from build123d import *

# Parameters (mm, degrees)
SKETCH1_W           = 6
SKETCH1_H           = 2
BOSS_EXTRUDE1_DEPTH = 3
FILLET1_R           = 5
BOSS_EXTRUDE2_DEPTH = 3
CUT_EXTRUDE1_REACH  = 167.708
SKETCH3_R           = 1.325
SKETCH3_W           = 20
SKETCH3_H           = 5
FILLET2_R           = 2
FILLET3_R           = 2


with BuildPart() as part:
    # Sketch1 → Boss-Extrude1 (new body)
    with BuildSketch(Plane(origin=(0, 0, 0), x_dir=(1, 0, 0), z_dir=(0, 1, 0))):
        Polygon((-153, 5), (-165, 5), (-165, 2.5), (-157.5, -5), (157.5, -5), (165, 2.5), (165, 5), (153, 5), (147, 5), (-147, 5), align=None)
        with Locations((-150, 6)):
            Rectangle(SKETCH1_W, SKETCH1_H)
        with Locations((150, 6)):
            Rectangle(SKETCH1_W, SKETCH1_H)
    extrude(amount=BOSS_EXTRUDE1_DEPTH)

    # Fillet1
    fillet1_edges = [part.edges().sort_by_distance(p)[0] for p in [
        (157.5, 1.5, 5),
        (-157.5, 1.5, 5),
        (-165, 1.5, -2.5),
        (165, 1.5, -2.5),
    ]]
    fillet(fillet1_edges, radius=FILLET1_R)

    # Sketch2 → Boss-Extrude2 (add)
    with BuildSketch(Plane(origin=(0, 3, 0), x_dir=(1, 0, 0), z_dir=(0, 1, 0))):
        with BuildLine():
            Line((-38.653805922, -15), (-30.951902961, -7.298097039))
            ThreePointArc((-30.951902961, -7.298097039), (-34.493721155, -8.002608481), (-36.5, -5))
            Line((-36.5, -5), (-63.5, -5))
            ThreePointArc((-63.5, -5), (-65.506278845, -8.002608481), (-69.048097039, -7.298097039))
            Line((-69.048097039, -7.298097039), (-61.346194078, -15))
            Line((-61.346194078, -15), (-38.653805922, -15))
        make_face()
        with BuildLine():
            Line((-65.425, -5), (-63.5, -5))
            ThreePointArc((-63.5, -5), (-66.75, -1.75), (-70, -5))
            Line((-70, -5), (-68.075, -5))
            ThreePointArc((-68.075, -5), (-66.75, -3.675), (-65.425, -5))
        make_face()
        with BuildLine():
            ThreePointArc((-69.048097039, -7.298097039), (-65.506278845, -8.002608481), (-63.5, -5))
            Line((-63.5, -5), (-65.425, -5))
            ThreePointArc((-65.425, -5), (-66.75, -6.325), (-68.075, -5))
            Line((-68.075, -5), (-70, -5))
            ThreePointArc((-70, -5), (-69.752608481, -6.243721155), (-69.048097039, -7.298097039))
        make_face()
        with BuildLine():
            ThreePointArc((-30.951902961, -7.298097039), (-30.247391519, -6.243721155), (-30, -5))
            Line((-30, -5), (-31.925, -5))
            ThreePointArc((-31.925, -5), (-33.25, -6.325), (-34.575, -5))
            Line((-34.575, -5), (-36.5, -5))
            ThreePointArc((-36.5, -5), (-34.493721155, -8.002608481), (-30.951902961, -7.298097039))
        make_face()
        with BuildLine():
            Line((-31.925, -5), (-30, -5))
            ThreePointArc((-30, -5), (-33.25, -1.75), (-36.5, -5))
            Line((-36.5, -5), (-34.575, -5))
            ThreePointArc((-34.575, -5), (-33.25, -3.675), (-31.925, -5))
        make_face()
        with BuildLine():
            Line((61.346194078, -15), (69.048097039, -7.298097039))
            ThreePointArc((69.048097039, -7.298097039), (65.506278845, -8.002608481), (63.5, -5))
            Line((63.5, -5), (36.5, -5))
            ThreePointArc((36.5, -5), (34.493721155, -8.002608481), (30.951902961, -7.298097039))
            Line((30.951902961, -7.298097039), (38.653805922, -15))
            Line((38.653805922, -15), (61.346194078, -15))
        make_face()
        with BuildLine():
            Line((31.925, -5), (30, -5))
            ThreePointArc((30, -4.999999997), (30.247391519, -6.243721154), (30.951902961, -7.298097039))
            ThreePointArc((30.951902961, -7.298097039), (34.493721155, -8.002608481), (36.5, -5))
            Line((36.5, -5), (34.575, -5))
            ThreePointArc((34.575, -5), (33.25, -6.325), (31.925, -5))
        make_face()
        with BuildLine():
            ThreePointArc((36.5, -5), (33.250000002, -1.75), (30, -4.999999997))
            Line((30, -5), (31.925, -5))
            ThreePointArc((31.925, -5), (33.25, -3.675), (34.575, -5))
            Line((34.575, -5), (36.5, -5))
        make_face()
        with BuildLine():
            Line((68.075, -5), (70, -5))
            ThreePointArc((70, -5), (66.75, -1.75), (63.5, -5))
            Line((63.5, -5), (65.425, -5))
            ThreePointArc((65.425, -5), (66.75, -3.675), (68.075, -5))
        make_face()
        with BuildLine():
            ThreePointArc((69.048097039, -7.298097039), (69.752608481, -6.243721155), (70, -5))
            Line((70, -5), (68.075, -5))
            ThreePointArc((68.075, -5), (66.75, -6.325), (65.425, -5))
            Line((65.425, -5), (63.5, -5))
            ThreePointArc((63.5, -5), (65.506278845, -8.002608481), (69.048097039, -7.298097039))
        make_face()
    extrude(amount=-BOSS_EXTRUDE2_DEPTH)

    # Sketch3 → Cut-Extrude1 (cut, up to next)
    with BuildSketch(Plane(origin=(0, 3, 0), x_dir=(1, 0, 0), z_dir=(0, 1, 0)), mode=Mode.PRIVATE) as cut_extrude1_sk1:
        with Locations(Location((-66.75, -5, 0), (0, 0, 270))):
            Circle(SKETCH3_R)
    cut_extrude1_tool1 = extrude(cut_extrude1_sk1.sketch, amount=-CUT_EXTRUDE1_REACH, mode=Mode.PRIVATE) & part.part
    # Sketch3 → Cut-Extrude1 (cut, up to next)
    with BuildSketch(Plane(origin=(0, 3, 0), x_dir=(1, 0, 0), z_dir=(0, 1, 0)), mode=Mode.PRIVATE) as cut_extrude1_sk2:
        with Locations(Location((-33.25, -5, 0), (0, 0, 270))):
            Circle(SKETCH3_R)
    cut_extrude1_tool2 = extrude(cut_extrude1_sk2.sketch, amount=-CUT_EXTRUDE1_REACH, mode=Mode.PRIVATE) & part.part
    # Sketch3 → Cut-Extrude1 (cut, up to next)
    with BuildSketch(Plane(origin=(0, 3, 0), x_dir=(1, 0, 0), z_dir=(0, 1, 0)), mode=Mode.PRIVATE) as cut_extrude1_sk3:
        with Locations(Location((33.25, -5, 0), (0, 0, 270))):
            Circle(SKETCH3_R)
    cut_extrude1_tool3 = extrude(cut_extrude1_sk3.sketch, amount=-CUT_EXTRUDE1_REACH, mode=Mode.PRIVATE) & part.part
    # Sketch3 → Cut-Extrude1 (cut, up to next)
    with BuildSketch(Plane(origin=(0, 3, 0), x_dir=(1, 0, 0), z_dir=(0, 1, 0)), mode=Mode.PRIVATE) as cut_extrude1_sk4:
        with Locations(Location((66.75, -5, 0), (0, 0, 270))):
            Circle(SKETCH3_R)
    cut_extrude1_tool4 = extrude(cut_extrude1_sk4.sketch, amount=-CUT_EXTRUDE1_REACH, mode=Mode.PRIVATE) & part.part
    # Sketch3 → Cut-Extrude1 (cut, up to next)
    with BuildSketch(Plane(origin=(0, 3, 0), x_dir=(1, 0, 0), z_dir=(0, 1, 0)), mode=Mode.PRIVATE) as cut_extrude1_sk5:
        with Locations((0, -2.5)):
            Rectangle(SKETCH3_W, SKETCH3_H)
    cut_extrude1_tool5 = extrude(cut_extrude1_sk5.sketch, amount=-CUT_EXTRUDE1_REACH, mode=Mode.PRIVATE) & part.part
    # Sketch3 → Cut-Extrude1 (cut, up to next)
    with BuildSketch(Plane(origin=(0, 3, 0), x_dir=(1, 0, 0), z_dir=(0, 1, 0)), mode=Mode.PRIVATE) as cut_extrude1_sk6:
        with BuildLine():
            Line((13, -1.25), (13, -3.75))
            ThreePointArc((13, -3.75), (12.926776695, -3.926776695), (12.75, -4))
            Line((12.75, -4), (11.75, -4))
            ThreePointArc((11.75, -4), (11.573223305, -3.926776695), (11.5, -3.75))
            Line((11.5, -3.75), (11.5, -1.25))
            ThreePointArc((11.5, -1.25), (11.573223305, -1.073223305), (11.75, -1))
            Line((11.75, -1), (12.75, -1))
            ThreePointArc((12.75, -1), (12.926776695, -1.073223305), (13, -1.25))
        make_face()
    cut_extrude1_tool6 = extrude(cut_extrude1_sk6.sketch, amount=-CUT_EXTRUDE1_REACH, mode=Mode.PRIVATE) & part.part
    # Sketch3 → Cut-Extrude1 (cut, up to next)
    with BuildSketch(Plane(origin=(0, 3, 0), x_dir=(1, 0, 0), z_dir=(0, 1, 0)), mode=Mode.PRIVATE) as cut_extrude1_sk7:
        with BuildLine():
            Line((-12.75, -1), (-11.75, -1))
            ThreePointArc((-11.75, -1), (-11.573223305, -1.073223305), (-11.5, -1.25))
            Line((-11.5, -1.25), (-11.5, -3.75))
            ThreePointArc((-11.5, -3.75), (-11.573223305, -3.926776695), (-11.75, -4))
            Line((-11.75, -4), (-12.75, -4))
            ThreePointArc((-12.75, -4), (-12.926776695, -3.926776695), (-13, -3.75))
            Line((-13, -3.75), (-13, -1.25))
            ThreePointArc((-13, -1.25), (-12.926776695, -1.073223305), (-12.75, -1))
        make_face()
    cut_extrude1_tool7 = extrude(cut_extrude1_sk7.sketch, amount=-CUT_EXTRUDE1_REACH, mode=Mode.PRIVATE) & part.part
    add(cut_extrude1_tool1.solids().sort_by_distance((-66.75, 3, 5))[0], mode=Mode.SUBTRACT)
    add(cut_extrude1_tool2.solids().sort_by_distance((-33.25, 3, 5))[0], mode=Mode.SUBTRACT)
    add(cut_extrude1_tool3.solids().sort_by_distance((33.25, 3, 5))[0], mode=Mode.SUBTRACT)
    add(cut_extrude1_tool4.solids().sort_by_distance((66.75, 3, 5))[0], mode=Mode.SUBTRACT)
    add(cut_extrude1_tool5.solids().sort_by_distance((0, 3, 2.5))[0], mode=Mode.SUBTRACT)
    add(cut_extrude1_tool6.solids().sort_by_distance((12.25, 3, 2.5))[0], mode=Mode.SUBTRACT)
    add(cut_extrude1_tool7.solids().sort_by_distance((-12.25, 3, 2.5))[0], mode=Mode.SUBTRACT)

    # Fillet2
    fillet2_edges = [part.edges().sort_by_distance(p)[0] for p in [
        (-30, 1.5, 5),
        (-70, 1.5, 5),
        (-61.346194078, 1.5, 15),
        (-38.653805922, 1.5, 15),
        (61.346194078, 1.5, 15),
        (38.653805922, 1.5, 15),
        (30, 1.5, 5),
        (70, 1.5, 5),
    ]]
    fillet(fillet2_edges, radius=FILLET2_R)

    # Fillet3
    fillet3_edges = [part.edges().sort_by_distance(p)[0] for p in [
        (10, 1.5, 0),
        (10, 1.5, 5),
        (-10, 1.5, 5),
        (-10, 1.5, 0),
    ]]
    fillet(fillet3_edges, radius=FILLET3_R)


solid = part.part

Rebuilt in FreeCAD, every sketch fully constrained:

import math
import FreeCAD as App
import Part
import Sketcher
from FreeCAD import Vector


def edges_at(feature, points):
    """Names of the edges that pass closest to the given points."""
    edges = feature.Shape.Edges
    near = lambda p: min(range(len(edges)), key=lambda i: edges[i].distToShape(Part.Vertex(*p))[0])
    return sorted({f"Edge{near(p) + 1}" for p in points})


def add_polygon(sketch, points):
    """Adds a closed chain of lines whose ends are joined by coincident constraints."""
    first, n = sketch.GeometryCount, len(points)
    for a, b in zip(points, points[1:] + points[:1]):
        sketch.addGeometry(Part.LineSegment(App.Vector(*a, 0), App.Vector(*b, 0)), False)
    for i in range(n):
        sketch.addConstraint(Sketcher.Constraint("Coincident", first + i, 2, first + (i + 1) % n, 1))

doc = App.newDocument("Part")
body = doc.addObject("PartDesign::Body", "Body")

# Sketch on XZ plane
sketch1 = doc.addObject("Sketcher::SketchObject", "Sketch")
body.addObject(sketch1)
sketch1.AttachmentSupport = (doc.XZ_Plane, [""])
sketch1.MapMode = "FlatFace"
add_polygon(sketch1, [(-153, -5), (-165, -5), (-165, -2.5), (-157.5, 5), (157.5, 5), (165, -2.5), (165, -5), (153, -5), (153, -7), (147, -7), (147, -5), (-147, -5), (-147, -7), (-153, -7)])  # lines 0-13
sketch1.addConstraint(Sketcher.Constraint("Horizontal", 0))
sketch1.addConstraint(Sketcher.Constraint("Vertical", 1))
sketch1.addConstraint(Sketcher.Constraint("Horizontal", 3))
sketch1.addConstraint(Sketcher.Constraint("Vertical", 5))
sketch1.addConstraint(Sketcher.Constraint("Horizontal", 6))
sketch1.addConstraint(Sketcher.Constraint("Vertical", 7))
sketch1.addConstraint(Sketcher.Constraint("Horizontal", 8))
sketch1.addConstraint(Sketcher.Constraint("Vertical", 9))
sketch1.addConstraint(Sketcher.Constraint("Horizontal", 10))
sketch1.addConstraint(Sketcher.Constraint("Vertical", 11))
sketch1.addConstraint(Sketcher.Constraint("Horizontal", 12))
sketch1.addConstraint(Sketcher.Constraint("Vertical", 13))
sketch1.addConstraint(Sketcher.Constraint("Symmetric", 1, 2, 4, 2, -2))
sketch1.addConstraint(Sketcher.Constraint("Symmetric", 8, 2, 11, 2, -2))
sketch1.addConstraint(Sketcher.Constraint("Symmetric", 6, 2, 13, 2, -2))
sketch1.addConstraint(Sketcher.Constraint("Perpendicular", 2, 4))
sketch1.addConstraint(Sketcher.Constraint("Horizontal", 6, 2, 9, 2))
sketch1.addConstraint(Sketcher.Constraint("Equal", 2, 4))
sketch1.addConstraint(Sketcher.Constraint("DistanceX", 0, 2, 0, 1, 12.0))
sketch1.addConstraint(Sketcher.Constraint("DistanceX", 3, 1, 3, 2, 315.0))
sketch1.addConstraint(Sketcher.Constraint("DistanceX", 8, 2, 8, 1, 6.0))
sketch1.addConstraint(Sketcher.Constraint("DistanceX", 10, 2, 10, 1, 294.0))
sketch1.addConstraint(Sketcher.Constraint("DistanceY", 7, 2, 7, 1, 2.0))
sketch1.addConstraint(Sketcher.Constraint("DistanceY", 1, 1, 1, 2, 2.5))
sketch1.addConstraint(Sketcher.Constraint("DistanceY", 0, 2, -1, 1, 5.0))
pad1 = doc.addObject("PartDesign::Pad", "Pad")
body.addObject(pad1)
pad1.Profile = sketch1
pad1.Length = 3
pad1.Reversed = True
doc.recompute()

fillet = doc.addObject("PartDesign::Fillet", "Fillet")
body.addObject(fillet)
fillet.Base = (pad1, edges_at(pad1, [
    (157.5, 1.5, 5),
    (-157.5, 1.5, 5),
    (-165, 1.5, -2.5),
    (165, 1.5, -2.5),
]))
fillet.Radius = 5

# Sketch on XZ plane
sketch2 = doc.addObject("Sketcher::SketchObject", "Sketch001")
body.addObject(sketch2)
sketch2.AttachmentSupport = (doc.XZ_Plane, [""])
sketch2.MapMode = "FlatFace"
sketch2.AttachmentOffset = App.Placement(Vector(0, 0, -3), App.Rotation())
sketch2.addGeometry(Part.LineSegment(Vector(-38.7, 15, 0), Vector(-31, 7.3, 0)), False)
sketch2.addGeometry(Part.ArcOfCircle(Part.Circle(Vector(-33.2, 5, 0), Vector(0, 0, 1), 3.2), math.radians(0), math.radians(45)), False)
sketch2.addGeometry(Part.ArcOfCircle(Part.Circle(Vector(-33.2, 5, 0), Vector(0, 0, 1), 3.2), math.radians(180), math.radians(360)), False)
sketch2.addGeometry(Part.LineSegment(Vector(-36.5, 5, 0), Vector(-63.5, 5, 0)), False)
sketch2.addGeometry(Part.ArcOfCircle(Part.Circle(Vector(-66.8, 5, 0), Vector(0, 0, 1), 3.2), math.radians(180), math.radians(360)), False)
sketch2.addGeometry(Part.ArcOfCircle(Part.Circle(Vector(-66.8, 5, 0), Vector(0, 0, 1), 3.2), math.radians(135), math.radians(180)), False)
sketch2.addGeometry(Part.LineSegment(Vector(-69, 7.3, 0), Vector(-61.3, 15, 0)), False)
sketch2.addGeometry(Part.LineSegment(Vector(-61.3, 15, 0), Vector(-38.7, 15, 0)), False)
sketch2.addGeometry(Part.Circle(Vector(-33.2, 5, 0), Vector(0, 0, 1), 1.3), False)
sketch2.addGeometry(Part.Circle(Vector(-66.8, 5, 0), Vector(0, 0, 1), 1.3), False)
sketch2.addGeometry(Part.LineSegment(Vector(61.3, 15, 0), Vector(69, 7.3, 0)), False)
sketch2.addGeometry(Part.ArcOfCircle(Part.Circle(Vector(66.8, 5, 0), Vector(0, 0, 1), 3.2), math.radians(0), math.radians(45)), False)
sketch2.addGeometry(Part.ArcOfCircle(Part.Circle(Vector(66.8, 5, 0), Vector(0, 0, 1), 3.2), math.radians(180), math.radians(360)), False)
sketch2.addGeometry(Part.LineSegment(Vector(63.5, 5, 0), Vector(36.5, 5, 0)), False)
sketch2.addGeometry(Part.ArcOfCircle(Part.Circle(Vector(33.2, 5, 0), Vector(0, 0, 1), 3.2), math.radians(-180), math.radians(0)), False)
sketch2.addGeometry(Part.ArcOfCircle(Part.Circle(Vector(33.3, 5, 0), Vector(0, 0, 1), 3.3), math.radians(135), math.radians(180)), False)
sketch2.addGeometry(Part.LineSegment(Vector(31, 7.3, 0), Vector(38.7, 15, 0)), False)
sketch2.addGeometry(Part.LineSegment(Vector(38.7, 15, 0), Vector(61.3, 15, 0)), False)
sketch2.addGeometry(Part.Circle(Vector(33.2, 5, 0), Vector(0, 0, 1), 1.3), False)
sketch2.addGeometry(Part.Circle(Vector(66.8, 5, 0), Vector(0, 0, 1), 1.3), False)
sketch2.addConstraint(Sketcher.Constraint("Tangent", 0, 2, 1, 2))
sketch2.addConstraint(Sketcher.Constraint("Tangent", 1, 1, 2, 2))
sketch2.addConstraint(Sketcher.Constraint("Coincident", 2, 1, 3, 1))
sketch2.addConstraint(Sketcher.Constraint("Coincident", 3, 2, 4, 2))
sketch2.addConstraint(Sketcher.Constraint("Tangent", 4, 1, 5, 2))
sketch2.addConstraint(Sketcher.Constraint("Tangent", 5, 1, 6, 1))
sketch2.addConstraint(Sketcher.Constraint("Coincident", 6, 2, 7, 1))
sketch2.addConstraint(Sketcher.Constraint("Coincident", 7, 2, 0, 1))
sketch2.addConstraint(Sketcher.Constraint("Tangent", 10, 2, 11, 2))
sketch2.addConstraint(Sketcher.Constraint("Tangent", 11, 1, 12, 2))
sketch2.addConstraint(Sketcher.Constraint("Coincident", 12, 1, 13, 1))
sketch2.addConstraint(Sketcher.Constraint("Coincident", 13, 2, 14, 2))
sketch2.addConstraint(Sketcher.Constraint("Tangent", 14, 1, 15, 2))
sketch2.addConstraint(Sketcher.Constraint("Tangent", 15, 1, 16, 1))
sketch2.addConstraint(Sketcher.Constraint("Coincident", 16, 2, 17, 1))
sketch2.addConstraint(Sketcher.Constraint("Coincident", 17, 2, 10, 1))
sketch2.addConstraint(Sketcher.Constraint("Horizontal", 3))
sketch2.addConstraint(Sketcher.Constraint("Horizontal", 7))
sketch2.addConstraint(Sketcher.Constraint("Horizontal", 13))
sketch2.addConstraint(Sketcher.Constraint("Horizontal", 17))
sketch2.addConstraint(Sketcher.Constraint("Coincident", 8, 3, 1, 3))
sketch2.addConstraint(Sketcher.Constraint("Coincident", 9, 3, 4, 3))
sketch2.addConstraint(Sketcher.Constraint("Coincident", 18, 3, 14, 3))
sketch2.addConstraint(Sketcher.Constraint("Coincident", 19, 3, 11, 3))
sketch2.addConstraint(Sketcher.Constraint("Equal", 1, 2))
sketch2.addConstraint(Sketcher.Constraint("Equal", 2, 4))
sketch2.addConstraint(Sketcher.Constraint("Equal", 4, 5))
sketch2.addConstraint(Sketcher.Constraint("Equal", 8, 9))
sketch2.addConstraint(Sketcher.Constraint("Equal", 5, 11))
sketch2.addConstraint(Sketcher.Constraint("Equal", 11, 12))
sketch2.addConstraint(Sketcher.Constraint("Equal", 12, 14))
sketch2.addConstraint(Sketcher.Constraint("Equal", 14, 15))
sketch2.addConstraint(Sketcher.Constraint("Equal", 9, 18))
sketch2.addConstraint(Sketcher.Constraint("Equal", 18, 19))
sketch2.addConstraint(Sketcher.Constraint("Symmetric", 4, 3, 11, 3, -2))
sketch2.addConstraint(Sketcher.Constraint("Symmetric", 1, 3, 14, 3, -2))
sketch2.addConstraint(Sketcher.Constraint("Symmetric", 7, 2, 16, 2, -2))
sketch2.addConstraint(Sketcher.Constraint("Perpendicular", 0, 6))
sketch2.addConstraint(Sketcher.Constraint("Perpendicular", 6, 10))
sketch2.addConstraint(Sketcher.Constraint("Perpendicular", 10, 16))
sketch2.addConstraint(Sketcher.Constraint("Horizontal", 2, 3, 4, 3))
sketch2.addConstraint(Sketcher.Constraint("Horizontal", 19, 3, 1, 1))
sketch2.addConstraint(Sketcher.Constraint("Horizontal", 1, 1, 2, 1))
sketch2.addConstraint(Sketcher.Constraint("Horizontal", 3, 2, 4, 1))
sketch2.addConstraint(Sketcher.Constraint("Horizontal", 4, 1, 11, 1))
sketch2.addConstraint(Sketcher.Constraint("Horizontal", 11, 1, 12, 1))
sketch2.addConstraint(Sketcher.Constraint("Horizontal", 13, 2, 14, 1))
sketch2.addConstraint(Sketcher.Constraint("Diameter", 8, 2.65))
sketch2.addConstraint(Sketcher.Constraint("DistanceX", 3, 2, 3, 1, 27.0))
sketch2.addConstraint(Sketcher.Constraint("Radius", 1, 3.25))
sketch2.addConstraint(Sketcher.Constraint("DistanceY", -1, 1, 1, 3, 5.0))
sketch2.addConstraint(Sketcher.Constraint("DistanceX", 1, 1, -1, 1, 30.0))
sketch2.addConstraint(Sketcher.Constraint("DistanceY", -1, 1, 6, 2, 15.0))
pad2 = doc.addObject("PartDesign::Pad", "Pad001")
body.addObject(pad2)
pad2.Profile = sketch2
pad2.Length = 3

# Sketch on XZ plane
sketch3 = doc.addObject("Sketcher::SketchObject", "Sketch002")
body.addObject(sketch3)
sketch3.AttachmentSupport = (doc.XZ_Plane, [""])
sketch3.MapMode = "FlatFace"
sketch3.AttachmentOffset = App.Placement(Vector(0, 0, -3), App.Rotation())
sketch3.addGeometry(Part.Circle(Vector(-66.8, 5, 0), Vector(0, 0, 1), 1.3), False)
sketch3.addConstraint(Sketcher.Constraint("Diameter", 0, 2.65))
sketch3.addConstraint(Sketcher.Constraint("DistanceY", -1, 1, 0, 3, 5.0))
sketch3.addConstraint(Sketcher.Constraint("DistanceX", 0, 3, -1, 1, 66.75))
pocket1 = doc.addObject("PartDesign::Pocket", "Pocket")
body.addObject(pocket1)
pocket1.Profile = sketch3
pocket1.Type = "UpToFirst"
pocket1.Reversed = True

# Sketch on XZ plane
sketch4 = doc.addObject("Sketcher::SketchObject", "Sketch003")
body.addObject(sketch4)
sketch4.AttachmentSupport = (doc.XZ_Plane, [""])
sketch4.MapMode = "FlatFace"
sketch4.AttachmentOffset = App.Placement(Vector(0, 0, -3), App.Rotation())
sketch4.addGeometry(Part.Circle(Vector(-33.2, 5, 0), Vector(0, 0, 1), 1.3), False)
sketch4.addConstraint(Sketcher.Constraint("Diameter", 0, 2.65))
sketch4.addConstraint(Sketcher.Constraint("DistanceY", -1, 1, 0, 3, 5.0))
sketch4.addConstraint(Sketcher.Constraint("DistanceX", 0, 3, -1, 1, 33.25))
pocket2 = doc.addObject("PartDesign::Pocket", "Pocket001")
body.addObject(pocket2)
pocket2.Profile = sketch4
pocket2.Type = "UpToFirst"
pocket2.Reversed = True

# Sketch on XZ plane
sketch5 = doc.addObject("Sketcher::SketchObject", "Sketch004")
body.addObject(sketch5)
sketch5.AttachmentSupport = (doc.XZ_Plane, [""])
sketch5.MapMode = "FlatFace"
sketch5.AttachmentOffset = App.Placement(Vector(0, 0, -3), App.Rotation())
sketch5.addGeometry(Part.Circle(Vector(33.2, 5, 0), Vector(0, 0, 1), 1.3), False)
sketch5.addConstraint(Sketcher.Constraint("Diameter", 0, 2.65))
sketch5.addConstraint(Sketcher.Constraint("DistanceY", -1, 1, 0, 3, 5.0))
sketch5.addConstraint(Sketcher.Constraint("DistanceX", -1, 1, 0, 3, 33.25))
pocket3 = doc.addObject("PartDesign::Pocket", "Pocket002")
body.addObject(pocket3)
pocket3.Profile = sketch5
pocket3.Type = "UpToFirst"
pocket3.Reversed = True

# Sketch on XZ plane
sketch6 = doc.addObject("Sketcher::SketchObject", "Sketch005")
body.addObject(sketch6)
sketch6.AttachmentSupport = (doc.XZ_Plane, [""])
sketch6.MapMode = "FlatFace"
sketch6.AttachmentOffset = App.Placement(Vector(0, 0, -3), App.Rotation())
sketch6.addGeometry(Part.Circle(Vector(66.8, 5, 0), Vector(0, 0, 1), 1.3), False)
sketch6.addConstraint(Sketcher.Constraint("Diameter", 0, 2.65))
sketch6.addConstraint(Sketcher.Constraint("DistanceY", -1, 1, 0, 3, 5.0))
sketch6.addConstraint(Sketcher.Constraint("DistanceX", -1, 1, 0, 3, 66.75))
pocket4 = doc.addObject("PartDesign::Pocket", "Pocket003")
body.addObject(pocket4)
pocket4.Profile = sketch6
pocket4.Type = "UpToFirst"
pocket4.Reversed = True

# Sketch on XZ plane
sketch7 = doc.addObject("Sketcher::SketchObject", "Sketch006")
body.addObject(sketch7)
sketch7.AttachmentSupport = (doc.XZ_Plane, [""])
sketch7.MapMode = "FlatFace"
sketch7.AttachmentOffset = App.Placement(Vector(0, 0, -3), App.Rotation())
add_polygon(sketch7, [(-10, 0), (-10, 5), (10, 5), (10, 0)])  # lines 0-3
sketch7.addConstraint(Sketcher.Constraint("Vertical", 0))
sketch7.addConstraint(Sketcher.Constraint("Horizontal", 1))
sketch7.addConstraint(Sketcher.Constraint("Vertical", 2))
sketch7.addConstraint(Sketcher.Constraint("Horizontal", 3))
sketch7.addConstraint(Sketcher.Constraint("Symmetric", 2, 2, 3, 2, -1, 1))
sketch7.addConstraint(Sketcher.Constraint("DistanceX", 1, 1, 1, 2, 20.0))
sketch7.addConstraint(Sketcher.Constraint("DistanceY", 0, 1, 0, 2, 5.0))
pocket5 = doc.addObject("PartDesign::Pocket", "Pocket004")
body.addObject(pocket5)
pocket5.Profile = sketch7
pocket5.Type = "UpToFirst"
pocket5.Reversed = True

# Sketch on XZ plane
sketch8 = doc.addObject("Sketcher::SketchObject", "Sketch007")
body.addObject(sketch8)
sketch8.AttachmentSupport = (doc.XZ_Plane, [""])
sketch8.MapMode = "FlatFace"
sketch8.AttachmentOffset = App.Placement(Vector(0, 0, -3), App.Rotation())
sketch8.addGeometry(Part.LineSegment(Vector(13, 3.75, 0), Vector(13, 1.25, 0)), False)
sketch8.addGeometry(Part.ArcOfCircle(Part.Circle(Vector(12.75, 1.25, 0), Vector(0, 0, 1), 0.25), math.radians(-90), math.radians(0)), False)
sketch8.addGeometry(Part.LineSegment(Vector(12.75, 1, 0), Vector(11.75, 1, 0)), False)
sketch8.addGeometry(Part.ArcOfCircle(Part.Circle(Vector(11.75, 1.25, 0), Vector(0, 0, 1), 0.25), math.radians(-180), math.radians(-90)), False)
sketch8.addGeometry(Part.LineSegment(Vector(11.5, 1.25, 0), Vector(11.5, 3.75, 0)), False)
sketch8.addGeometry(Part.ArcOfCircle(Part.Circle(Vector(11.75, 3.75, 0), Vector(0, 0, 1), 0.25), math.radians(90), math.radians(180)), False)
sketch8.addGeometry(Part.LineSegment(Vector(11.75, 4, 0), Vector(12.75, 4, 0)), False)
sketch8.addGeometry(Part.ArcOfCircle(Part.Circle(Vector(12.75, 3.75, 0), Vector(0, 0, 1), 0.25), math.radians(0), math.radians(90)), False)
sketch8.addConstraint(Sketcher.Constraint("Tangent", 0, 2, 1, 2))
sketch8.addConstraint(Sketcher.Constraint("Tangent", 1, 1, 2, 1))
sketch8.addConstraint(Sketcher.Constraint("Tangent", 2, 2, 3, 2))
sketch8.addConstraint(Sketcher.Constraint("Tangent", 3, 1, 4, 1))
sketch8.addConstraint(Sketcher.Constraint("Tangent", 4, 2, 5, 2))
sketch8.addConstraint(Sketcher.Constraint("Tangent", 5, 1, 6, 1))
sketch8.addConstraint(Sketcher.Constraint("Tangent", 6, 2, 7, 2))
sketch8.addConstraint(Sketcher.Constraint("Tangent", 7, 1, 0, 1))
sketch8.addConstraint(Sketcher.Constraint("Vertical", 0))
sketch8.addConstraint(Sketcher.Constraint("Horizontal", 2))
sketch8.addConstraint(Sketcher.Constraint("Vertical", 4))
sketch8.addConstraint(Sketcher.Constraint("Horizontal", 6))
sketch8.addConstraint(Sketcher.Constraint("Equal", 1, 3))
sketch8.addConstraint(Sketcher.Constraint("Equal", 3, 5))
sketch8.addConstraint(Sketcher.Constraint("Equal", 5, 7))
sketch8.addConstraint(Sketcher.Constraint("DistanceX", 2, 2, 2, 1, 1.0))
sketch8.addConstraint(Sketcher.Constraint("Radius", 1, 0.25))
sketch8.addConstraint(Sketcher.Constraint("DistanceY", 0, 2, 0, 1, 2.5))
sketch8.addConstraint(Sketcher.Constraint("DistanceX", -1, 1, 0, 2, 13.0))
sketch8.addConstraint(Sketcher.Constraint("DistanceY", -1, 1, 1, 1, 1.0))
pocket6 = doc.addObject("PartDesign::Pocket", "Pocket005")
body.addObject(pocket6)
pocket6.Profile = sketch8
pocket6.Type = "UpToFirst"
pocket6.Reversed = True

# Sketch on XZ plane
sketch9 = doc.addObject("Sketcher::SketchObject", "Sketch008")
body.addObject(sketch9)
sketch9.AttachmentSupport = (doc.XZ_Plane, [""])
sketch9.MapMode = "FlatFace"
sketch9.AttachmentOffset = App.Placement(Vector(0, 0, -3), App.Rotation())
sketch9.addGeometry(Part.LineSegment(Vector(-11.75, 1, 0), Vector(-12.75, 1, 0)), False)
sketch9.addGeometry(Part.ArcOfCircle(Part.Circle(Vector(-12.75, 1.25, 0), Vector(0, 0, 1), 0.25), math.radians(-180), math.radians(-90)), False)
sketch9.addGeometry(Part.LineSegment(Vector(-13, 1.25, 0), Vector(-13, 3.75, 0)), False)
sketch9.addGeometry(Part.ArcOfCircle(Part.Circle(Vector(-12.75, 3.75, 0), Vector(0, 0, 1), 0.25), math.radians(90), math.radians(180)), False)
sketch9.addGeometry(Part.LineSegment(Vector(-12.75, 4, 0), Vector(-11.75, 4, 0)), False)
sketch9.addGeometry(Part.ArcOfCircle(Part.Circle(Vector(-11.75, 3.75, 0), Vector(0, 0, 1), 0.25), math.radians(0), math.radians(90)), False)
sketch9.addGeometry(Part.LineSegment(Vector(-11.5, 3.75, 0), Vector(-11.5, 1.25, 0)), False)
sketch9.addGeometry(Part.ArcOfCircle(Part.Circle(Vector(-11.75, 1.25, 0), Vector(0, 0, 1), 0.25), math.radians(-90), math.radians(0)), False)
sketch9.addConstraint(Sketcher.Constraint("Tangent", 0, 2, 1, 2))
sketch9.addConstraint(Sketcher.Constraint("Tangent", 1, 1, 2, 1))
sketch9.addConstraint(Sketcher.Constraint("Tangent", 2, 2, 3, 2))
sketch9.addConstraint(Sketcher.Constraint("Tangent", 3, 1, 4, 1))
sketch9.addConstraint(Sketcher.Constraint("Tangent", 4, 2, 5, 2))
sketch9.addConstraint(Sketcher.Constraint("Tangent", 5, 1, 6, 1))
sketch9.addConstraint(Sketcher.Constraint("Tangent", 6, 2, 7, 2))
sketch9.addConstraint(Sketcher.Constraint("Tangent", 7, 1, 0, 1))
sketch9.addConstraint(Sketcher.Constraint("Horizontal", 0))
sketch9.addConstraint(Sketcher.Constraint("Vertical", 2))
sketch9.addConstraint(Sketcher.Constraint("Horizontal", 4))
sketch9.addConstraint(Sketcher.Constraint("Vertical", 6))
sketch9.addConstraint(Sketcher.Constraint("Equal", 1, 3))
sketch9.addConstraint(Sketcher.Constraint("Equal", 3, 5))
sketch9.addConstraint(Sketcher.Constraint("Equal", 5, 7))
sketch9.addConstraint(Sketcher.Constraint("DistanceX", 0, 2, 0, 1, 1.0))
sketch9.addConstraint(Sketcher.Constraint("Radius", 1, 0.25))
sketch9.addConstraint(Sketcher.Constraint("DistanceY", 2, 1, 2, 2, 2.5))
sketch9.addConstraint(Sketcher.Constraint("DistanceY", -1, 1, 0, 2, 1.0))
sketch9.addConstraint(Sketcher.Constraint("DistanceX", 1, 1, -1, 1, 13.0))
pocket7 = doc.addObject("PartDesign::Pocket", "Pocket006")
body.addObject(pocket7)
pocket7.Profile = sketch9
pocket7.Type = "UpToFirst"
pocket7.Reversed = True
doc.recompute()

fillet2 = doc.addObject("PartDesign::Fillet", "Fillet001")
body.addObject(fillet2)
fillet2.Base = (pocket7, edges_at(pocket7, [
    (-30, 1.5, 5),
    (-70, 1.5, 5),
    (-61.346, 1.5, 15),
    (-38.654, 1.5, 15),
    (61.346, 1.5, 15),
    (38.654, 1.5, 15),
    (30, 1.5, 5),
    (70, 1.5, 5),
]))
fillet2.Radius = 2
doc.recompute()

fillet3 = doc.addObject("PartDesign::Fillet", "Fillet002")
body.addObject(fillet3)
fillet3.Base = (fillet2, edges_at(fillet2, [
    (10, 1.5, 0),
    (10, 1.5, 5),
    (-10, 1.5, 5),
    (-10, 1.5, 0),
]))
fillet3.Radius = 2

doc.recompute()
